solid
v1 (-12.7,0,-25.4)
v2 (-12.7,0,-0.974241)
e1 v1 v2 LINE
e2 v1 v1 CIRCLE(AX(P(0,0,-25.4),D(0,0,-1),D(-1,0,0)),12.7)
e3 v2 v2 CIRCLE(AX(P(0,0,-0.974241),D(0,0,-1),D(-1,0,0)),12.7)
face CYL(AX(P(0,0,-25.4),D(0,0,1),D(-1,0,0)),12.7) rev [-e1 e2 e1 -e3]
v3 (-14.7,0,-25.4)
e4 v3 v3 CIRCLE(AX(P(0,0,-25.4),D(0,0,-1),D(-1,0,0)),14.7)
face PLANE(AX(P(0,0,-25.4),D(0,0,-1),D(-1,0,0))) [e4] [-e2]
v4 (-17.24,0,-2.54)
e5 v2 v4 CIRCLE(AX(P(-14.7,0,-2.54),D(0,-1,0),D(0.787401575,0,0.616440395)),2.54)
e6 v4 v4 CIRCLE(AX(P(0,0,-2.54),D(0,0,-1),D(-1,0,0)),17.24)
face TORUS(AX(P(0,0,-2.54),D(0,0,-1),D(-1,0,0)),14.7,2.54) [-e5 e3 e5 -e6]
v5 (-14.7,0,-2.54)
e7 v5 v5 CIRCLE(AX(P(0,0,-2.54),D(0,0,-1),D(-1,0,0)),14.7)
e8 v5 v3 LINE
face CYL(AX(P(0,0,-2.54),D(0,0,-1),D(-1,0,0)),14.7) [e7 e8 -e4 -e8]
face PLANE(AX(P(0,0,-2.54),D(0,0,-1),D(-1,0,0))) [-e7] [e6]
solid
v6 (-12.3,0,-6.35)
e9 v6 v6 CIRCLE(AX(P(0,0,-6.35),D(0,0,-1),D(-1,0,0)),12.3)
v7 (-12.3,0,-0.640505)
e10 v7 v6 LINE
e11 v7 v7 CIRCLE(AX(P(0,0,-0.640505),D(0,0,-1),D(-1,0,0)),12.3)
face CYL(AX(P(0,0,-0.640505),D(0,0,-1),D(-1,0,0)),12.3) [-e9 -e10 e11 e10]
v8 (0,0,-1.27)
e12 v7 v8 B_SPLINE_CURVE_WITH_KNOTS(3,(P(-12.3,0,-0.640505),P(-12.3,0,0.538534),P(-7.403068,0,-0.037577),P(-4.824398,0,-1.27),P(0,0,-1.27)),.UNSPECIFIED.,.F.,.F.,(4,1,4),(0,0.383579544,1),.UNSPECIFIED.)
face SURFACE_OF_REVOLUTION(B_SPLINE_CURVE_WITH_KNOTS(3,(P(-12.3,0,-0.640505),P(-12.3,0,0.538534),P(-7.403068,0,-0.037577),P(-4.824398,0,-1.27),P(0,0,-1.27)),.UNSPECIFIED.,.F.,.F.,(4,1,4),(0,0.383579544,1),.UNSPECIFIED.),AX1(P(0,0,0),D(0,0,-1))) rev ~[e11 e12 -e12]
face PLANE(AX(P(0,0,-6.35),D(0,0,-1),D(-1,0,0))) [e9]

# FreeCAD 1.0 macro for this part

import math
import FreeCAD as App
import Part
import Sketcher
from FreeCAD import Vector
Q = App.Units.Quantity

doc = App.newDocument("Part")
body = doc.addObject("PartDesign::Body", "Body")

sketch1 = body.newObject("Sketcher::SketchObject", "Sketch")
sketch1.AttachmentSupport = (doc.getObject("XZ_Plane"), [""])
sketch1.MapMode = "FlatFace"
sketch1.addGeometry([
    Part.LineSegment(Vector(-14.7, -2.5, 0), Vector(-14.7, -25.4, 0)),
    Part.LineSegment(Vector(-14.7, -25.4, 0), Vector(-12.7, -25.4, 0)),
    Part.LineSegment(Vector(-12.7, -25.4, 0), Vector(-12.7, -1, 0)),
    Part.ArcOfCircle(Part.Circle(Vector(-14.7, -2.5, 0), Vector(0, 0, 1), 2.5), math.radians(38), math.radians(180)),
    Part.LineSegment(Vector(-17.2, -2.5, 0), Vector(-14.7, -2.5, 0)),
], False)
sketch1.addConstraint([
    Sketcher.Constraint("Coincident", 0, 2, 1, 1),
    Sketcher.Constraint("Coincident", 1, 2, 2, 1),
    Sketcher.Constraint("Coincident", 2, 2, 3, 1),
    Sketcher.Constraint("Coincident", 3, 2, 4, 1),
    Sketcher.Constraint("Coincident", 4, 2, 0, 1),
    Sketcher.Constraint("Vertical", 0),
    Sketcher.Constraint("Horizontal", 1),
    Sketcher.Constraint("Vertical", 2),
    Sketcher.Constraint("Horizontal", 4),
    Sketcher.Constraint("Coincident", 4, 2, 3, 3),
    Sketcher.Constraint("Radius", 3, Q("0.1 in")),
    Sketcher.Constraint("DistanceY", 0, 2, 0, 1, Q("0.9 in")),
    Sketcher.Constraint("DistanceY", 0, 2, -1, 1, Q("1 in")),
    Sketcher.Constraint("DistanceX", 1, 2, -1, 1, Q("0.5 in")),
    Sketcher.Constraint("DistanceX", 1, 1, 1, 2, 2.0),
])
revolution = body.newObject("PartDesign::Revolution", "Revolution")
revolution.Profile = sketch1
revolution.ReferenceAxis = (sketch1, ["V_Axis"])
revolution.Angle = 360
body2 = doc.addObject("PartDesign::Body", "Body001")

sketch2 = body2.newObject("Sketcher::SketchObject", "Sketch001")
sketch2.AttachmentSupport = (doc.getObject("XZ_Plane001"), [""])
sketch2.MapMode = "FlatFace"
sketch2.addGeometry([
    Part.BSplineCurve([Vector(-12.3, -0.640505, 0), Vector(-12.3, 0.538534, 0), Vector(-7.403068, -0.037577, 0), Vector(-4.824398, -1.27, 0), Vector(0, -1.27, 0)], [4, 1, 4], [0, 0.383579544, 1], False, 3, [1, 1, 1, 1, 1], False),
    Part.LineSegment(Vector(-12.3, -0.640505, 0), Vector(-12.3, -6.35, 0)),
    Part.LineSegment(Vector(-12.3, -6.35, 0), Vector(0, -6.35, 0)),
    Part.LineSegment(Vector(0, -6.35, 0), Vector(0, -1.27, 0)),
], False)
sketch2.addConstraint([
    Sketcher.Constraint("Block", 0),
    Sketcher.Constraint("Coincident", 0, 1, 1, 1),
    Sketcher.Constraint("Coincident", 1, 2, 2, 1),
    Sketcher.Constraint("Coincident", 2, 2, 3, 1),
    Sketcher.Constraint("Coincident", 3, 2, 0, 2),
    Sketcher.Constraint("Vertical", 1),
    Sketcher.Constraint("Horizontal", 2),
    Sketcher.Constraint("Vertical", 3),
    Sketcher.Constraint("DistanceY", 3, 1, 3, 2, Q("0.2 in")),
])
revolution2 = body2.newObject("PartDesign::Revolution", "Revolution001")
revolution2.Profile = sketch2
revolution2.ReferenceAxis = (sketch2, ["V_Axis"])
revolution2.Angle = 360

doc.recompute()
